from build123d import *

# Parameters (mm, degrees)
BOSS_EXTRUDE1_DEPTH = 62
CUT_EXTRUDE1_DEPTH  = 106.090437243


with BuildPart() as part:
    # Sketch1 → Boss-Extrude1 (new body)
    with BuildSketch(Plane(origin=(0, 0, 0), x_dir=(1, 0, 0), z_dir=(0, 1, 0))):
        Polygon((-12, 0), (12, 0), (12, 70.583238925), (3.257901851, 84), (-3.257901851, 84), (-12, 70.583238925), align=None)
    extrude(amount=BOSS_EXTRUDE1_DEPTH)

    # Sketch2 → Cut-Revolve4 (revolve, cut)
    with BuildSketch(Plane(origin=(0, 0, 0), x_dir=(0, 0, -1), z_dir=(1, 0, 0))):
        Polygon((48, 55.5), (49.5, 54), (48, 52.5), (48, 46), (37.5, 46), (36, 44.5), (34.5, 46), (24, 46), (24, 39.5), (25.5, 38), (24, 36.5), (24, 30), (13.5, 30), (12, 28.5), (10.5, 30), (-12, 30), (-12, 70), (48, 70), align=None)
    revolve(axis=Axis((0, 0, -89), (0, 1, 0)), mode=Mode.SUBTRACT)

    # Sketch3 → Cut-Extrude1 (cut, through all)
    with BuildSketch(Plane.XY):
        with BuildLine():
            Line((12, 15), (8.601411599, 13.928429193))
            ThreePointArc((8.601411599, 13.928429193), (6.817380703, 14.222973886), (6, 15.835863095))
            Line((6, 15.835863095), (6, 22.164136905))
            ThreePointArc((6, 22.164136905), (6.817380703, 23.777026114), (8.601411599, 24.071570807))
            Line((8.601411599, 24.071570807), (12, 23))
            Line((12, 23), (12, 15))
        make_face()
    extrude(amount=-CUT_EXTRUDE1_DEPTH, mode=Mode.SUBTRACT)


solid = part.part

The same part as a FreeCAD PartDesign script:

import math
import FreeCAD as App
import Part
import Sketcher

V = App.Vector
Q = App.Units.Quantity

doc = App.newDocument("Part")
body = doc.addObject("PartDesign::Body", "Body")

# Sketch on XZ plane
sketch1 = body.newObject("Sketcher::SketchObject", "Sketch")
sketch1.AttachmentSupport = (doc.getObject("XZ_Plane"), [""])
sketch1.MapMode = "FlatFace"
sketch1.addGeometry([
    Part.LineSegment(V(-12, 0, 0), V(12, 0, 0)),  # 0
    Part.LineSegment(V(12, 0, 0), V(12, -71, 0)),  # 1
    Part.LineSegment(V(12, -71, 0), V(3, -84, 0)),  # 2
    Part.LineSegment(V(3, -84, 0), V(-3, -84, 0)),  # 3
    Part.LineSegment(V(-3, -84, 0), V(-12, -71, 0)),  # 4
    Part.LineSegment(V(-12, -71, 0), V(-12, 0, 0)),  # 5
], False)
sketch1.addConstraint([
    Sketcher.Constraint("Coincident", 0, 2, 1, 1),
    Sketcher.Constraint("Coincident", 1, 2, 2, 1),
    Sketcher.Constraint("Coincident", 2, 2, 3, 1),
    Sketcher.Constraint("Coincident", 3, 2, 4, 1),
    Sketcher.Constraint("Coincident", 4, 2, 5, 1),
    Sketcher.Constraint("Coincident", 5, 2, 0, 1),
    Sketcher.Constraint("Horizontal", 0),
    Sketcher.Constraint("Vertical", 1),
    Sketcher.Constraint("Horizontal", 3),
    Sketcher.Constraint("Vertical", 5),
    Sketcher.Constraint("Symmetric", 0, 2, 5, 2, -1, 1),
    Sketcher.Constraint("Horizontal", 1, 2, 4, 2),
    Sketcher.Constraint("Equal", 2, 4),
    Sketcher.Constraint("DistanceX", 0, 1, 0, 2, 24.0),
    Sketcher.Constraint("DistanceY", 2, 2, -1, 1, 84.0),
    Sketcher.Constraint("DistanceY", 1, 2, 1, 1, 70.583239),
    Sketcher.Constraint("DistanceX", -1, 1, 2, 2, 3.257902),
])
pad1 = body.newObject("PartDesign::Pad", "Pad")
pad1.Profile = sketch1
pad1.Length = 62
pad1.Reversed = True

# Sketch on YZ plane
sketch2 = body.newObject("Sketcher::SketchObject", "Sketch001")
sketch2.AttachmentSupport = (doc.getObject("YZ_Plane"), [""])
sketch2.MapMode = "FlatFace"
sketch2.addGeometry([
    Part.LineSegment(V(54, -49.5, 0), V(55.5, -48, 0)),  # 0
    Part.LineSegment(V(55.5, -48, 0), V(70, -48, 0)),  # 1
    Part.LineSegment(V(70, -48, 0), V(70, 12, 0)),  # 2
    Part.LineSegment(V(70, 12, 0), V(30, 12, 0)),  # 3
    Part.LineSegment(V(30, 12, 0), V(30, -10.5, 0)),  # 4
    Part.LineSegment(V(30, -10.5, 0), V(28.5, -12, 0)),  # 5
    Part.LineSegment(V(28.5, -12, 0), V(30, -13.5, 0)),  # 6
    Part.LineSegment(V(30, -13.5, 0), V(30, -24, 0)),  # 7
    Part.LineSegment(V(30, -24, 0), V(36.5, -24, 0)),  # 8
    Part.LineSegment(V(36.5, -24, 0), V(38, -25.5, 0)),  # 9
    Part.LineSegment(V(38, -25.5, 0), V(39.5, -24, 0)),  # 10
    Part.LineSegment(V(39.5, -24, 0), V(46, -24, 0)),  # 11
    Part.LineSegment(V(46, -24, 0), V(46, -34.5, 0)),  # 12
    Part.LineSegment(V(46, -34.5, 0), V(44.5, -36, 0)),  # 13
    Part.LineSegment(V(44.5, -36, 0), V(46, -37.5, 0)),  # 14
    Part.LineSegment(V(46, -37.5, 0), V(46, -48, 0)),  # 15
    Part.LineSegment(V(46, -48, 0), V(52.5, -48, 0)),  # 16
    Part.LineSegment(V(52.5, -48, 0), V(54, -49.5, 0)),  # 17
], False)
sketch2.addGeometry(Part.LineSegment(V(28.5, -89, 0), V(70, -89, 0)), True)  # axis
sketch2.addConstraint([
    Sketcher.Constraint("Coincident", 0, 2, 1, 1),
    Sketcher.Constraint("Coincident", 1, 2, 2, 1),
    Sketcher.Constraint("Coincident", 2, 2, 3, 1),
    Sketcher.Constraint("Coincident", 3, 2, 4, 1),
    Sketcher.Constraint("Coincident", 4, 2, 5, 1),
    Sketcher.Constraint("Coincident", 5, 2, 6, 1),
    Sketcher.Constraint("Coincident", 6, 2, 7, 1),
    Sketcher.Constraint("Coincident", 7, 2, 8, 1),
    Sketcher.Constraint("Coincident", 8, 2, 9, 1),
    Sketcher.Constraint("Coincident", 9, 2, 10, 1),
    Sketcher.Constraint("Coincident", 10, 2, 11, 1),
    Sketcher.Constraint("Coincident", 11, 2, 12, 1),
    Sketcher.Constraint("Coincident", 12, 2, 13, 1),
    Sketcher.Constraint("Coincident", 13, 2, 14, 1),
    Sketcher.Constraint("Coincident", 14, 2, 15, 1),
    Sketcher.Constraint("Coincident", 15, 2, 16, 1),
    Sketcher.Constraint("Coincident", 16, 2, 17, 1),
    Sketcher.Constraint("Coincident", 17, 2, 0, 1),
    Sketcher.Constraint("Horizontal", 1),
    Sketcher.Constraint("Vertical", 2),
    Sketcher.Constraint("Horizontal", 3),
    Sketcher.Constraint("Vertical", 4),
    Sketcher.Constraint("Vertical", 7),
    Sketcher.Constraint("Horizontal", 8),
    Sketcher.Constraint("Horizontal", 11),
    Sketcher.Constraint("Vertical", 12),
    Sketcher.Constraint("Vertical", 15),
    Sketcher.Constraint("Horizontal", 16),
    Sketcher.Constraint("Horizontal", 18),
    Sketcher.Constraint("Parallel", 0, 5),
    Sketcher.Constraint("Perpendicular", 5, 6),
    Sketcher.Constraint("Parallel", 6, 9),
    Sketcher.Constraint("Perpendicular", 9, 10),
    Sketcher.Constraint("Parallel", 10, 13),
    Sketcher.Constraint("Perpendicular", 13, 14),
    Sketcher.Constraint("Parallel", 14, 17),
    Sketcher.Constraint("Horizontal", 8, 2, 10, 2),
    Sketcher.Constraint("Horizontal", 1, 2, 15, 2),
    Sketcher.Constraint("Vertical", 4, 2, 6, 2),
    Sketcher.Constraint("Vertical", 12, 2, 14, 2),
    Sketcher.Constraint("Vertical", 5, 2, 18, 1),
    Sketcher.Constraint("Vertical", 2, 2, 18, 2),
    Sketcher.Constraint("Equal", 8, 11),
    Sketcher.Constraint("Equal", 11, 16),
    Sketcher.Constraint("Equal", 7, 12),
    Sketcher.Constraint("Equal", 12, 15),
    Sketcher.Constraint("Equal", 0, 5),
    Sketcher.Constraint("Equal", 5, 6),
    Sketcher.Constraint("Equal", 6, 9),
    Sketcher.Constraint("Equal", 10, 13),
    Sketcher.Constraint("DistanceX", 3, 2, 3, 1, 40.0),
    Sketcher.Constraint("DistanceY", 2, 1, 2, 2, 60.0),
    Sketcher.Constraint("DistanceX", 1, 1, 1, 2, 14.5),
    Sketcher.Constraint("DistanceX", 8, 1, 8, 2, 6.5),
    Sketcher.Constraint("DistanceY", 4, 2, 4, 1, 22.5),
    Sketcher.Constraint("DistanceY", 0, 2, -1, 1, 48.0),
    Sketcher.Constraint("DistanceX", -1, 1, 1, 2, 70.0),
    Sketcher.Constraint("DistanceY", 18, 1, -1, 1, 89.0),
])
groove = body.newObject("PartDesign::Groove", "Groove")
groove.Profile = sketch2
groove.ReferenceAxis = (sketch2, ["Axis0"])
groove.Angle = 360

# Sketch on XY plane
sketch3 = body.newObject("Sketcher::SketchObject", "Sketch002")
sketch3.AttachmentSupport = (doc.getObject("XY_Plane"), [""])
sketch3.MapMode = "FlatFace"
sketch3.addGeometry([
    Part.LineSegment(V(8.6, 13.9, 0), V(12, 15, 0)),  # 0
    Part.LineSegment(V(12, 15, 0), V(12, 23, 0)),  # 1
    Part.LineSegment(V(12, 23, 0), V(8.6, 24.1, 0)),  # 2
    Part.ArcOfCircle(Part.Circle(V(8, 22.2, 0), V(0, 0, 1), 2), math.radians(72), math.radians(180)),  # 3
    Part.LineSegment(V(6, 22.2, 0), V(6, 15.8, 0)),  # 4
    Part.ArcOfCircle(Part.Circle(V(8, 15.8, 0), V(0, 0, 1), 2), math.radians(180), math.radians(288)),  # 5
], False)
sketch3.addConstraint([
    Sketcher.Constraint("Coincident", 0, 2, 1, 1),
    Sketcher.Constraint("Coincident", 1, 2, 2, 1),
    Sketcher.Constraint("Tangent", 2, 2, 3, 1),
    Sketcher.Constraint("Tangent", 3, 2, 4, 1),
    Sketcher.Constraint("Tangent", 4, 2, 5, 1),
    Sketcher.Constraint("Tangent", 5, 2, 0, 1),
    Sketcher.Constraint("Vertical", 1),
    Sketcher.Constraint("Vertical", 4),
    Sketcher.Constraint("Equal", 3, 5),
    Sketcher.Constraint("Vertical", 2, 2, 5, 2),
    Sketcher.Constraint("Radius", 3, 2.0),
    Sketcher.Constraint("DistanceY", 1, 1, 1, 2, 8.0),
    Sketcher.Constraint("DistanceX", -1, 1, 3, 3, 8.0),
    Sketcher.Constraint("DistanceX", -1, 1, 0, 2, 12.0),
    Sketcher.Constraint("DistanceY", -1, 1, 0, 2, 15.0),
    Sketcher.Constraint("Angle", 0, Q("17.5 deg")),
])
pocket1 = body.newObject("PartDesign::Pocket", "Pocket")
pocket1.Profile = sketch3
pocket1.Type = "ThroughAll"

doc.recompute()
